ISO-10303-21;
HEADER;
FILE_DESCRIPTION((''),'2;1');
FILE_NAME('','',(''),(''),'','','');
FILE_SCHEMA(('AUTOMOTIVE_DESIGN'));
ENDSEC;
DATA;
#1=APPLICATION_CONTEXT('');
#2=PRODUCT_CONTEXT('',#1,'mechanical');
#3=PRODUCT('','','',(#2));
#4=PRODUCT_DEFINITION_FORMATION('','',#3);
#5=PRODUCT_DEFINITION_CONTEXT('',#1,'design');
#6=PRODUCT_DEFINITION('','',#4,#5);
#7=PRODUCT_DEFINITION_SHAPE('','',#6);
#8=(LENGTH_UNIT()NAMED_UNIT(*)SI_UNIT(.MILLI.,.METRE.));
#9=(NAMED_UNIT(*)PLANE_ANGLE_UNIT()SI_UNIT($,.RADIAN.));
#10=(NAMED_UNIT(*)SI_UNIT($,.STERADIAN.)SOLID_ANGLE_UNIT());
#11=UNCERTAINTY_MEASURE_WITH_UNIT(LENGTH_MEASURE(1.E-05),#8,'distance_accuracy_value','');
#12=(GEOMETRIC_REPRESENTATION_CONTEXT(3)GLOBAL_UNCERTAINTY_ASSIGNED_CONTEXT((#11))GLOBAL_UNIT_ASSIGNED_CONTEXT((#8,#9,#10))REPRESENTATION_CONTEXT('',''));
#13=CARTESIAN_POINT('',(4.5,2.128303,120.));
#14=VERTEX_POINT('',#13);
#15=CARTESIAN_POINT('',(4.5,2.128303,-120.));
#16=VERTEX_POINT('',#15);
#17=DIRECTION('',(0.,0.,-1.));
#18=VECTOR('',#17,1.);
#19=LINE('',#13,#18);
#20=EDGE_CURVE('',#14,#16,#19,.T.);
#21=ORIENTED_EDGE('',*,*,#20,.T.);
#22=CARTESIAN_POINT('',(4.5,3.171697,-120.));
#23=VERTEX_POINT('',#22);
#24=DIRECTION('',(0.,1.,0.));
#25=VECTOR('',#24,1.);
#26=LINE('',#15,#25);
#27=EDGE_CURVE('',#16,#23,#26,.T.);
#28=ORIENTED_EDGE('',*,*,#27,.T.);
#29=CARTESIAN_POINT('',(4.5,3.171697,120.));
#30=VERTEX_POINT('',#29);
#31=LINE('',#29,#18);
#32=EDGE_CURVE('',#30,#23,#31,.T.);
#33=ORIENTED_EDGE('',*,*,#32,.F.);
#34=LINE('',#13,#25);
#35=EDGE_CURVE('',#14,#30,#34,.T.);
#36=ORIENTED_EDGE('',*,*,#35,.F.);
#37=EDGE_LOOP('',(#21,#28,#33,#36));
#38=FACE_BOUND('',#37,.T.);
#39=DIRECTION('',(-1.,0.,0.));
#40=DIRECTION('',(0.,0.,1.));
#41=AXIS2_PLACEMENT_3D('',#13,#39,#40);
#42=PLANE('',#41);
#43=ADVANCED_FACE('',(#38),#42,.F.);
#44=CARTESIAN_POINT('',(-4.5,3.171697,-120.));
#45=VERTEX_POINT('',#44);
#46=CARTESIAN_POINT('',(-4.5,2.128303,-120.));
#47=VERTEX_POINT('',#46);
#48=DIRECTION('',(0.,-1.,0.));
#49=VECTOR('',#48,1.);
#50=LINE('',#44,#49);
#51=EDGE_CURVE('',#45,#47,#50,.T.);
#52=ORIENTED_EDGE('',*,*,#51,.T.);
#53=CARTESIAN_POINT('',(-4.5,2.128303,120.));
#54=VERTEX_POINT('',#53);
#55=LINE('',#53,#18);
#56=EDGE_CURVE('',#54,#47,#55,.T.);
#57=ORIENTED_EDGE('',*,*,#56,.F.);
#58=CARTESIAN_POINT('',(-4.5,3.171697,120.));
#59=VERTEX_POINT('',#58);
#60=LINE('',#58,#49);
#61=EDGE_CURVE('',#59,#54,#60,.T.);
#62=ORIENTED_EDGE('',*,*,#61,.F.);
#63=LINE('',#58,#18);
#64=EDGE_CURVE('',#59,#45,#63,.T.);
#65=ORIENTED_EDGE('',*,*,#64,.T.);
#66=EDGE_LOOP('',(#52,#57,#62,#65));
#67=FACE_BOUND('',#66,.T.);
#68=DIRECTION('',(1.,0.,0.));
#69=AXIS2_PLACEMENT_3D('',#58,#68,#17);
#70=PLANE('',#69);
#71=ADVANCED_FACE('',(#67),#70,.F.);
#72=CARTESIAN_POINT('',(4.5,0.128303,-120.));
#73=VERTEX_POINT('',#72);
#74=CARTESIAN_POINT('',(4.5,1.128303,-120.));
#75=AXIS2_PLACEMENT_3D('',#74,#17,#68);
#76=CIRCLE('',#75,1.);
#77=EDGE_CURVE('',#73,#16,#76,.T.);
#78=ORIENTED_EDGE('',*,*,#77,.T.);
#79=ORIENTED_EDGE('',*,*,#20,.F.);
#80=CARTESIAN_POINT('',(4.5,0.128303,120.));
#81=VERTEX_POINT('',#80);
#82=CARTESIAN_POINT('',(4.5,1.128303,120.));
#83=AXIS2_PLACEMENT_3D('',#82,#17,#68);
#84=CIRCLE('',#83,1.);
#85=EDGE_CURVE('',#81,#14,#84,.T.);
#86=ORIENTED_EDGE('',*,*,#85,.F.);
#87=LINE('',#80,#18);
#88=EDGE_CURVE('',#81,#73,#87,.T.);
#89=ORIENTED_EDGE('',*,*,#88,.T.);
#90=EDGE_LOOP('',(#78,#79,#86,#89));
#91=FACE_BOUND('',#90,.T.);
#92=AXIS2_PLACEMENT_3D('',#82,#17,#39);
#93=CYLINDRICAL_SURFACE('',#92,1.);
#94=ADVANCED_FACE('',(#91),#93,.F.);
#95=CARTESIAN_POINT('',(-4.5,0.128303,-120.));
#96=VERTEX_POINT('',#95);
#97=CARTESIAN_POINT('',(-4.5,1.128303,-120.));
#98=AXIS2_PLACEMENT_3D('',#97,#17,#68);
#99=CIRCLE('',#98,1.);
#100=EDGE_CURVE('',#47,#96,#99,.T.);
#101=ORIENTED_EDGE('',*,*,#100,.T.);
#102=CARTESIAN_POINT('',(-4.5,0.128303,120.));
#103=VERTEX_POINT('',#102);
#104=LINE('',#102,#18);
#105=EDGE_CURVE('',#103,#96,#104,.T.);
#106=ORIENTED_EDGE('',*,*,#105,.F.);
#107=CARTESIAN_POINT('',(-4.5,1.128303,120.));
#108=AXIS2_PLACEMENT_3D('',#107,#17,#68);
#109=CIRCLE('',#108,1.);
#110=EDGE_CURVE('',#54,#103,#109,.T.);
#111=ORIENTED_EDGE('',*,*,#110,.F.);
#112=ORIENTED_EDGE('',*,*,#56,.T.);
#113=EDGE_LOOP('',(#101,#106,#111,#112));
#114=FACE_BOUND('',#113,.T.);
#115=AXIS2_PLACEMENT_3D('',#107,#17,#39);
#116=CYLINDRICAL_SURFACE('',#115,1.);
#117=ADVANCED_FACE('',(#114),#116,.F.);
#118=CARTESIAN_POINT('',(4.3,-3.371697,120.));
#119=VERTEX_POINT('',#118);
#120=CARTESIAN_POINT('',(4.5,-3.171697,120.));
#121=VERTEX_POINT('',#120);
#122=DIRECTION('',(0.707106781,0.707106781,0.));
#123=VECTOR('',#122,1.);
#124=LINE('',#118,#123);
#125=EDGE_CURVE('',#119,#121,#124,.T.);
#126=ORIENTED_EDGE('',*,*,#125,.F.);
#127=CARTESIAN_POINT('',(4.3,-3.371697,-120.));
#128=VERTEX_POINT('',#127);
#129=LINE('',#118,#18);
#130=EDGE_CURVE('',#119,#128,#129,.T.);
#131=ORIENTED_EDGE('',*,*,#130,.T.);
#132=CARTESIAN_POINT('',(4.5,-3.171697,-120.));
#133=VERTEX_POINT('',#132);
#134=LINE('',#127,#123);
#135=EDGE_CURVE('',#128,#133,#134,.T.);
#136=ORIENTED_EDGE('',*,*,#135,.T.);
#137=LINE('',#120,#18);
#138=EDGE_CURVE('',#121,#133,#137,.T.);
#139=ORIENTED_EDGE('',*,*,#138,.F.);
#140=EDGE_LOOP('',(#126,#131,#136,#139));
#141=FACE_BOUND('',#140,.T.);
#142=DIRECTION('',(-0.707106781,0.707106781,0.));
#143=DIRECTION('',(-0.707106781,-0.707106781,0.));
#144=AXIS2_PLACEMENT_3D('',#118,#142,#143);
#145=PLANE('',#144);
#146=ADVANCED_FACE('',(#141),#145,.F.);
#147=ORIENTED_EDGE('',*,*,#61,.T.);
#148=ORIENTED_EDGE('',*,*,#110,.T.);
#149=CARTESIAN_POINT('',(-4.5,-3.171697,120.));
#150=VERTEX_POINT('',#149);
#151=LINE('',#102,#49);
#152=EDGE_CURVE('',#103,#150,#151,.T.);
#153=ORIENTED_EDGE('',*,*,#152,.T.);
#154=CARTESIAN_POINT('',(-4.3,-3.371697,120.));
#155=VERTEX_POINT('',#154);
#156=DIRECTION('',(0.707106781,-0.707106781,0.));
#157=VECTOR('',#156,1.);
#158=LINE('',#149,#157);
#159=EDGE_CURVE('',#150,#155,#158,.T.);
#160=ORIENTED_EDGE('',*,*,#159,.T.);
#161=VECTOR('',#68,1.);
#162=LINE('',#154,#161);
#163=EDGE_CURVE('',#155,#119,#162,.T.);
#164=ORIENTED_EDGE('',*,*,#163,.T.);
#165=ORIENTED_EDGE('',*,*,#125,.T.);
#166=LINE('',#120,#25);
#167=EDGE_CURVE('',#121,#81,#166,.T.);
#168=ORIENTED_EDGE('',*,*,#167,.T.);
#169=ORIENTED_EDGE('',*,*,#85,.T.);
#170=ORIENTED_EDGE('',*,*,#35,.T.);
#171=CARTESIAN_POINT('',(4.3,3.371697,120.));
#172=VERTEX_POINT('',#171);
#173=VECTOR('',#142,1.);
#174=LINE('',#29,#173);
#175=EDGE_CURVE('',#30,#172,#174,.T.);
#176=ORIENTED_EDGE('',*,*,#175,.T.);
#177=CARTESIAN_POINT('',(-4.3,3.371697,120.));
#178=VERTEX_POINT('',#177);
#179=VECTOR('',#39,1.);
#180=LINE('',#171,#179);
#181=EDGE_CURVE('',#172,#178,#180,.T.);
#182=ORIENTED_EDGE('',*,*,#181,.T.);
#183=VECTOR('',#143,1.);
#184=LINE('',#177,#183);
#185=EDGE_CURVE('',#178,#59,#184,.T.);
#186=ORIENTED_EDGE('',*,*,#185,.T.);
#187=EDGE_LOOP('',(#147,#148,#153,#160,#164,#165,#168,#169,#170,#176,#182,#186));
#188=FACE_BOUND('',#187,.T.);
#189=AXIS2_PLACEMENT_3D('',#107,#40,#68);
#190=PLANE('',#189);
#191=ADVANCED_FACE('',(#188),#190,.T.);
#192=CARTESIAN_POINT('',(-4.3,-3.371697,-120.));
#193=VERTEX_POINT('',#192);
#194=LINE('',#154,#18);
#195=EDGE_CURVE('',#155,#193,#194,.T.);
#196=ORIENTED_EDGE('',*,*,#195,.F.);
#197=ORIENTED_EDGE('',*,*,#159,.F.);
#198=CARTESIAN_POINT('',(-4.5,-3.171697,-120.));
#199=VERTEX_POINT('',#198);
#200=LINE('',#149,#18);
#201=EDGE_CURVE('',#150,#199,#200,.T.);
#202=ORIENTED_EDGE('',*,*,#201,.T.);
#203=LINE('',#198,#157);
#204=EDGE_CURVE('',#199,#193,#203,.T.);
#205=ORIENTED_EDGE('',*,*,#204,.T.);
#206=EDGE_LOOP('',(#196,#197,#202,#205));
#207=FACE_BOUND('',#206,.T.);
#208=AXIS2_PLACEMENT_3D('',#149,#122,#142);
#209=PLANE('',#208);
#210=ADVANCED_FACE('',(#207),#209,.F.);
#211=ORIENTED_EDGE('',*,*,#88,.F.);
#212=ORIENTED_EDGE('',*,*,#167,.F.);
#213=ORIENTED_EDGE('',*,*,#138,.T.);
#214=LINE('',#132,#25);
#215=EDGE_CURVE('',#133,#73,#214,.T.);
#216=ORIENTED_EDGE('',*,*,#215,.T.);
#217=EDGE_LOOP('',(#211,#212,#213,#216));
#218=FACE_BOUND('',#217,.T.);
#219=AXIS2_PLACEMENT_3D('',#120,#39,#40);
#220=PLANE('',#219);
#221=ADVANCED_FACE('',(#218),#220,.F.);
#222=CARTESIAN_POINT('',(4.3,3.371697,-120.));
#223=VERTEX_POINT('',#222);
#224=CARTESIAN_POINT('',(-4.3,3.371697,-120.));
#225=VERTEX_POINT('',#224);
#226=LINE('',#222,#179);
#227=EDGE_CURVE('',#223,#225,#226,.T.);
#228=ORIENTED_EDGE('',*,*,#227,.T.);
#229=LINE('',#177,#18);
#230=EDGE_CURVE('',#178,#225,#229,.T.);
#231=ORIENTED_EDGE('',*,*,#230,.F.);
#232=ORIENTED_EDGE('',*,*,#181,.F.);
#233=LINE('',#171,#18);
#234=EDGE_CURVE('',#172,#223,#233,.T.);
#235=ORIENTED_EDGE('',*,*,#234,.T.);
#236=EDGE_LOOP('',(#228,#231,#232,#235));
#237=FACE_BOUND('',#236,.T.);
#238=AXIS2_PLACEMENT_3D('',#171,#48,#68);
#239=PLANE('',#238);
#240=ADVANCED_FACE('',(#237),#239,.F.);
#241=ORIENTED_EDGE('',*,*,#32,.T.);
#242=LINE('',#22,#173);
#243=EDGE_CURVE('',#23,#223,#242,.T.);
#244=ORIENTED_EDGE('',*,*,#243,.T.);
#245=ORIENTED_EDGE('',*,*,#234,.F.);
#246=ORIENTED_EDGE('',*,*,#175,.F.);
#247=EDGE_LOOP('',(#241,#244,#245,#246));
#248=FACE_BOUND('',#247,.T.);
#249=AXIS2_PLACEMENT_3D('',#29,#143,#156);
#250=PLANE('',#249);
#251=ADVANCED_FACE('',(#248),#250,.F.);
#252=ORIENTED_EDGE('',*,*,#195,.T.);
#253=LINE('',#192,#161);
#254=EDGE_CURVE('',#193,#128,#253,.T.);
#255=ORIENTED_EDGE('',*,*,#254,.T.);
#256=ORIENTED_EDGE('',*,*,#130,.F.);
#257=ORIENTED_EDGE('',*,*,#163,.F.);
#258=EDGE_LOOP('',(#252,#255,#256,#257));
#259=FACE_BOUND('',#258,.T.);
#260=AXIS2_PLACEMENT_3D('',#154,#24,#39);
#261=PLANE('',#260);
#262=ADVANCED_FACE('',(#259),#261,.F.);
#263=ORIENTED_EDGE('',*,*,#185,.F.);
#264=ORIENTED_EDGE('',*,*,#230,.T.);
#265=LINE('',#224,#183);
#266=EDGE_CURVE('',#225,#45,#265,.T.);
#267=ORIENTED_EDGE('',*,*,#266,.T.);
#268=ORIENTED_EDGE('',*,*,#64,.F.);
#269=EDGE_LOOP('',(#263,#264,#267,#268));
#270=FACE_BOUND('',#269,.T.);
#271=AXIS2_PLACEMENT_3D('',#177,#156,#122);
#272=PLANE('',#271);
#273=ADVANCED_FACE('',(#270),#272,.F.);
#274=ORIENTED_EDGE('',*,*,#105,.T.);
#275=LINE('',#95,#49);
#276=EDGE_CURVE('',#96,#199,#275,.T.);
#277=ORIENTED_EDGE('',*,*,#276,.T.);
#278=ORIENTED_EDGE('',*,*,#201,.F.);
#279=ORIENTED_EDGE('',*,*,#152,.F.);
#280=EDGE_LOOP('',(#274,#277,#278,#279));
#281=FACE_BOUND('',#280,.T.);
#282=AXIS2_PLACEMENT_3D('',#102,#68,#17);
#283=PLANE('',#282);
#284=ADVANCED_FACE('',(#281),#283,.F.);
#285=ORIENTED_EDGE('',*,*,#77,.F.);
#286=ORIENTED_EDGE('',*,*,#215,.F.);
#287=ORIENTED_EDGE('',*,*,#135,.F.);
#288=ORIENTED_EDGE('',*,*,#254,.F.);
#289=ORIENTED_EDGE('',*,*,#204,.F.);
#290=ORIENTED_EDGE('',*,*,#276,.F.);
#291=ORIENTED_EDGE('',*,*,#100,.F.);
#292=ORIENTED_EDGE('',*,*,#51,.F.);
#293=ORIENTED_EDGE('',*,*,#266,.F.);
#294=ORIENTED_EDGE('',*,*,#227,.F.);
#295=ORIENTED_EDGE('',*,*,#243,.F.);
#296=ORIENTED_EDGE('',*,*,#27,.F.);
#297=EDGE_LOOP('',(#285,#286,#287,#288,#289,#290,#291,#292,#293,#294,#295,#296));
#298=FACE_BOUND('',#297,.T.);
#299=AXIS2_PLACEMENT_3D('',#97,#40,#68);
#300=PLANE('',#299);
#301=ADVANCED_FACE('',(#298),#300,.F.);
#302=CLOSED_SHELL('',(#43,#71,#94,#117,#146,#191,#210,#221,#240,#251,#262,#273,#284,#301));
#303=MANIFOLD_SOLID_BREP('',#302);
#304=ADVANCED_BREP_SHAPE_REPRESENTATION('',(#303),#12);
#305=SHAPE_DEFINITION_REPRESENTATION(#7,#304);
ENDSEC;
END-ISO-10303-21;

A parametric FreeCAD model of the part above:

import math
import FreeCAD as App
import Part
import Sketcher
Q = App.Units.Quantity

doc = App.newDocument("Part")
body = doc.addObject("PartDesign::Body", "Body")

# Sketch on XY plane
sketch1 = doc.addObject("Sketcher::SketchObject", "Sketch")
body.addObject(sketch1)
sketch1.AttachmentSupport = (doc.XY_Plane, [""])
sketch1.MapMode = "FlatFace"
sketch1.addGeometry(Part.LineSegment(App.Vector(-4.5, 0.13, 0), App.Vector(-4.5, -3.17, 0)), False)
sketch1.addGeometry(Part.LineSegment(App.Vector(-4.5, -3.17, 0), App.Vector(-4.3, -3.37, 0)), False)
sketch1.addGeometry(Part.LineSegment(App.Vector(-4.3, -3.37, 0), App.Vector(4.3, -3.37, 0)), False)
sketch1.addGeometry(Part.LineSegment(App.Vector(4.3, -3.37, 0), App.Vector(4.5, -3.17, 0)), False)
sketch1.addGeometry(Part.LineSegment(App.Vector(4.5, -3.17, 0), App.Vector(4.5, 0.13, 0)), False)
sketch1.addGeometry(Part.ArcOfCircle(Part.Circle(App.Vector(4.5, 1.13, 0), App.Vector(0, 0, 1), 1), math.radians(-180), math.radians(-90)), False)
sketch1.addGeometry(Part.ArcOfCircle(Part.Circle(App.Vector(4.5, 1.13, 0), App.Vector(0, 0, 1), 1), math.radians(90), math.radians(180)), False)
sketch1.addGeometry(Part.LineSegment(App.Vector(4.5, 2.13, 0), App.Vector(4.5, 3.17, 0)), False)
sketch1.addGeometry(Part.LineSegment(App.Vector(4.5, 3.17, 0), App.Vector(4.3, 3.37, 0)), False)
sketch1.addGeometry(Part.LineSegment(App.Vector(4.3, 3.37, 0), App.Vector(-4.3, 3.37, 0)), False)
sketch1.addGeometry(Part.LineSegment(App.Vector(-4.3, 3.37, 0), App.Vector(-4.5, 3.17, 0)), False)
sketch1.addGeometry(Part.LineSegment(App.Vector(-4.5, 3.17, 0), App.Vector(-4.5, 2.13, 0)), False)
sketch1.addGeometry(Part.ArcOfCircle(Part.Circle(App.Vector(-4.5, 1.13, 0), App.Vector(0, 0, 1), 1), math.radians(0), math.radians(90)), False)
sketch1.addGeometry(Part.ArcOfCircle(Part.Circle(App.Vector(-4.5, 1.13, 0), App.Vector(0, 0, 1), 1), math.radians(-90), math.radians(0)), False)
sketch1.addConstraint(Sketcher.Constraint("Coincident", 0, 2, 1, 1))
sketch1.addConstraint(Sketcher.Constraint("Coincident", 1, 2, 2, 1))
sketch1.addConstraint(Sketcher.Constraint("Coincident", 2, 2, 3, 1))
sketch1.addConstraint(Sketcher.Constraint("Coincident", 3, 2, 4, 1))
sketch1.addConstraint(Sketcher.Constraint("Coincident", 4, 2, 5, 2))
sketch1.addConstraint(Sketcher.Constraint("Tangent", 5, 1, 6, 2))
sketch1.addConstraint(Sketcher.Constraint("Coincident", 6, 1, 7, 1))
sketch1.addConstraint(Sketcher.Constraint("Coincident", 7, 2, 8, 1))
sketch1.addConstraint(Sketcher.Constraint("Coincident", 8, 2, 9, 1))
sketch1.addConstraint(Sketcher.Constraint("Coincident", 9, 2, 10, 1))
sketch1.addConstraint(Sketcher.Constraint("Coincident", 10, 2, 11, 1))
sketch1.addConstraint(Sketcher.Constraint("Coincident", 11, 2, 12, 2))
sketch1.addConstraint(Sketcher.Constraint("Tangent", 12, 1, 13, 2))
sketch1.addConstraint(Sketcher.Constraint("Coincident", 13, 1, 0, 1))
sketch1.addConstraint(Sketcher.Constraint("Vertical", 0))
sketch1.addConstraint(Sketcher.Constraint("Horizontal", 2))
sketch1.addConstraint(Sketcher.Constraint("Vertical", 4))
sketch1.addConstraint(Sketcher.Constraint("Vertical", 7))
sketch1.addConstraint(Sketcher.Constraint("Horizontal", 9))
sketch1.addConstraint(Sketcher.Constraint("Vertical", 11))
sketch1.addConstraint(Sketcher.Constraint("Equal", 5, 6))
sketch1.addConstraint(Sketcher.Constraint("Equal", 6, 12))
sketch1.addConstraint(Sketcher.Constraint("Equal", 12, 13))
sketch1.addConstraint(Sketcher.Constraint("Symmetric", 0, 2, 7, 2, -1, 1))
sketch1.addConstraint(Sketcher.Constraint("Symmetric", 1, 2, 8, 2, -1, 1))
sketch1.addConstraint(Sketcher.Constraint("Symmetric", 3, 2, 10, 2, -1, 1))
sketch1.addConstraint(Sketcher.Constraint("Symmetric", 5, 3, 12, 3, -2))
sketch1.addConstraint(Sketcher.Constraint("Symmetric", 0, 2, 3, 2, -2))
sketch1.addConstraint(Sketcher.Constraint("Perpendicular", 1, 3))
sketch1.addConstraint(Sketcher.Constraint("Perpendicular", 8, 10))
sketch1.addConstraint(Sketcher.Constraint("Horizontal", 13, 3, 5, 1))
sketch1.addConstraint(Sketcher.Constraint("Horizontal", 5, 1, 12, 1))
sketch1.addConstraint(Sketcher.Constraint("Vertical", 13, 3, 0, 2))
sketch1.addConstraint(Sketcher.Constraint("Vertical", 2, 2, 8, 2))
sketch1.addConstraint(Sketcher.Constraint("Radius", 5, Q("1 mm")))
sketch1.addConstraint(Sketcher.Constraint("DistanceX", 2, 1, 2, 2, Q("8.6 mm")))
sketch1.addConstraint(Sketcher.Constraint("DistanceY", 0, 2, 0, 1, Q("3.3 mm")))
sketch1.addConstraint(Sketcher.Constraint("DistanceX", 12, 3, 5, 3, Q("9 mm")))
sketch1.addConstraint(Sketcher.Constraint("DistanceY", 7, 1, 7, 2, Q("1.043394 mm")))
pad1 = doc.addObject("PartDesign::Pad", "Pad")
body.addObject(pad1)
pad1.Profile = sketch1
pad1.Length = 240
pad1.Midplane = True

doc.recompute()
